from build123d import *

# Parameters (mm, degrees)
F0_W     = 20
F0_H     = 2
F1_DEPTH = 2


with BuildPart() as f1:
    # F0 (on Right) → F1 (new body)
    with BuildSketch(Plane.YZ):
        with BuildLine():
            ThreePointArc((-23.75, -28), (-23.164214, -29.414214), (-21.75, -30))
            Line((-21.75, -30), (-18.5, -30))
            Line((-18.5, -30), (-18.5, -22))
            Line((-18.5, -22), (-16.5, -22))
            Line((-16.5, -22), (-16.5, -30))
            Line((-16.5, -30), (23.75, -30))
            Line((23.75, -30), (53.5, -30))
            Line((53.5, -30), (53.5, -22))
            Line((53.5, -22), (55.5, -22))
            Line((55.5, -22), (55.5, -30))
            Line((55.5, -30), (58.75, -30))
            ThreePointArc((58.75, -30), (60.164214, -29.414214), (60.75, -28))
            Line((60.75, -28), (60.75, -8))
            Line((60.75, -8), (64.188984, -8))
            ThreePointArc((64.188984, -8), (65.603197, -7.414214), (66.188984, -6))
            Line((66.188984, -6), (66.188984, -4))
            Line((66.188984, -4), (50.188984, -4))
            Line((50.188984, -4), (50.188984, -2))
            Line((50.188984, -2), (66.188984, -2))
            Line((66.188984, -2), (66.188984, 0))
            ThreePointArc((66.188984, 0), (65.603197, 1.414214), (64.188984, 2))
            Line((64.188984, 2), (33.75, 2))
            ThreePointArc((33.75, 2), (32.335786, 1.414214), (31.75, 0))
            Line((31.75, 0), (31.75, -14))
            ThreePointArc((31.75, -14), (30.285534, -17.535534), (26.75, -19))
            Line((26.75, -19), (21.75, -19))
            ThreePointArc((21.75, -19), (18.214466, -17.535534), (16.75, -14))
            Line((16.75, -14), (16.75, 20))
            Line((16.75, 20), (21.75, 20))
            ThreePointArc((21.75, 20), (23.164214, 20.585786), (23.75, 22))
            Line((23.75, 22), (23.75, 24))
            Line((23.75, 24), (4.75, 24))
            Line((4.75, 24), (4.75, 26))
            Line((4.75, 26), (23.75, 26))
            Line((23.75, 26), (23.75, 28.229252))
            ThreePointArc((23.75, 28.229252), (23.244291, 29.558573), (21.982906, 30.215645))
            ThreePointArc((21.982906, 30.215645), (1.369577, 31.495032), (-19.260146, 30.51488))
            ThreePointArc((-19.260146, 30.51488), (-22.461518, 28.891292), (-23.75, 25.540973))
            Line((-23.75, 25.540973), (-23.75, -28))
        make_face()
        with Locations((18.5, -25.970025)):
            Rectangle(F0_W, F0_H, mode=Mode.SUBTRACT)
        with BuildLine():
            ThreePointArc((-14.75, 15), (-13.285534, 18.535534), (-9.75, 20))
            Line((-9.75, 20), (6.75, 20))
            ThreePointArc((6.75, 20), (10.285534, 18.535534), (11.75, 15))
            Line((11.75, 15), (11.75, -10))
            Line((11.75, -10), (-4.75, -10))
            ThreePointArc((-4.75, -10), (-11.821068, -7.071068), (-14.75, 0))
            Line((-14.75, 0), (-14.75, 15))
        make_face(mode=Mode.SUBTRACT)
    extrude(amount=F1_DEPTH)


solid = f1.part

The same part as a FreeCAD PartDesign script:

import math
import FreeCAD as App
import Part
import Sketcher
from FreeCAD import Vector


def add_polygon(sketch, points):
    """Adds a closed chain of lines whose ends are joined by coincident constraints."""
    first, n = sketch.GeometryCount, len(points)
    for a, b in zip(points, points[1:] + points[:1]):
        sketch.addGeometry(Part.LineSegment(App.Vector(*a, 0), App.Vector(*b, 0)), False)
    for i in range(n):
        sketch.addConstraint(Sketcher.Constraint("Coincident", first + i, 2, first + (i + 1) % n, 1))

doc = App.newDocument("Part")
params = doc.addObject("Spreadsheet::Sheet", "Params")
for row, (alias, value) in enumerate([
    ("sketch1_radius", "1.999999 mm"),
    ("sketch1_radius2", "5 mm"),
    ("sketch1_width", "2 mm"),
    ("sketch1_width2", "70 mm"),
    ("sketch1_width3", "16 mm"),
    ("pad1_length", "2 mm"),
], start=1):
    params.set(f"A{row}", alias)
    params.set(f"B{row}", "=" + value)
    params.setAlias(f"B{row}", alias)

body = doc.addObject("PartDesign::Body", "Body")

sketch1 = body.newObject("Sketcher::SketchObject", "Sketch")
sketch1.AttachmentSupport = (doc.getObject("YZ_Plane"), [""])
sketch1.MapMode = "FlatFace"
sketch1.addGeometry(Part.ArcOfCircle(Part.Circle(Vector(-21.8, -28, 0), Vector(0, 0, 1), 2), math.radians(180), math.radians(270)), False)
sketch1.addGeometry(Part.LineSegment(Vector(-21.8, -30, 0), Vector(-18.5, -30, 0)), False)
sketch1.addGeometry(Part.LineSegment(Vector(-18.5, -30, 0), Vector(-18.5, -22, 0)), False)
sketch1.addGeometry(Part.LineSegment(Vector(-18.5, -22, 0), Vector(-16.5, -22, 0)), False)
sketch1.addGeometry(Part.LineSegment(Vector(-16.5, -22, 0), Vector(-16.5, -30, 0)), False)
sketch1.addGeometry(Part.LineSegment(Vector(-16.5, -30, 0), Vector(53.5, -30, 0)), False)
sketch1.addGeometry(Part.LineSegment(Vector(53.5, -30, 0), Vector(53.5, -22, 0)), False)
sketch1.addGeometry(Part.LineSegment(Vector(53.5, -22, 0), Vector(55.5, -22, 0)), False)
sketch1.addGeometry(Part.LineSegment(Vector(55.5, -22, 0), Vector(55.5, -30, 0)), False)
sketch1.addGeometry(Part.LineSegment(Vector(55.5, -30, 0), Vector(58.8, -30, 0)), False)
sketch1.addGeometry(Part.ArcOfCircle(Part.Circle(Vector(58.8, -28, 0), Vector(0, 0, 1), 2), math.radians(-90), math.radians(0)), False)
sketch1.addGeometry(Part.LineSegment(Vector(60.8, -28, 0), Vector(60.8, -8, 0)), False)
sketch1.addGeometry(Part.LineSegment(Vector(60.8, -8, 0), Vector(64.2, -8, 0)), False)
sketch1.addGeometry(Part.ArcOfCircle(Part.Circle(Vector(64.2, -6, 0), Vector(0, 0, 1), 2), math.radians(-90), math.radians(0)), False)
sketch1.addGeometry(Part.LineSegment(Vector(66.2, -6, 0), Vector(66.2, -4, 0)), False)
sketch1.addGeometry(Part.LineSegment(Vector(66.2, -4, 0), Vector(50.2, -4, 0)), False)
sketch1.addGeometry(Part.LineSegment(Vector(50.2, -4, 0), Vector(50.2, -2, 0)), False)
sketch1.addGeometry(Part.LineSegment(Vector(50.2, -2, 0), Vector(66.2, -2, 0)), False)
sketch1.addGeometry(Part.LineSegment(Vector(66.2, -2, 0), Vector(66.2, 0, 0)), False)
sketch1.addGeometry(Part.ArcOfCircle(Part.Circle(Vector(64.2, 0, 0), Vector(0, 0, 1), 2), math.radians(0), math.radians(90)), False)
sketch1.addGeometry(Part.LineSegment(Vector(64.2, 2, 0), Vector(33.8, 2, 0)), False)
sketch1.addGeometry(Part.ArcOfCircle(Part.Circle(Vector(33.7, 0, 0), Vector(0, 0, 1), 2), math.radians(90), math.radians(180)), False)
sketch1.addGeometry(Part.LineSegment(Vector(31.8, 0, 0), Vector(31.8, -14, 0)), False)
sketch1.addGeometry(Part.ArcOfCircle(Part.Circle(Vector(26.8, -14, 0), Vector(0, 0, 1), 5), math.radians(-90), math.radians(0)), False)
sketch1.addGeometry(Part.LineSegment(Vector(26.8, -19, 0), Vector(21.8, -19, 0)), False)
sketch1.addGeometry(Part.ArcOfCircle(Part.Circle(Vector(21.7, -14, 0), Vector(0, 0, 1), 5), math.radians(180), math.radians(270)), False)
sketch1.addGeometry(Part.LineSegment(Vector(16.8, -14, 0), Vector(16.8, 20, 0)), False)
sketch1.addGeometry(Part.LineSegment(Vector(16.8, 20, 0), Vector(21.8, 20, 0)), False)
sketch1.addGeometry(Part.ArcOfCircle(Part.Circle(Vector(21.8, 22, 0), Vector(0, 0, 1), 2), math.radians(-90), math.radians(0)), False)
sketch1.addGeometry(Part.LineSegment(Vector(23.8, 22, 0), Vector(23.8, 24, 0)), False)
sketch1.addGeometry(Part.LineSegment(Vector(23.8, 24, 0), Vector(4.8, 24, 0)), False)
sketch1.addGeometry(Part.LineSegment(Vector(4.8, 24, 0), Vector(4.8, 26, 0)), False)
sketch1.addGeometry(Part.LineSegment(Vector(4.8, 26, 0), Vector(23.8, 26, 0)), False)
sketch1.addGeometry(Part.LineSegment(Vector(23.8, 26, 0), Vector(23.8, 28.2, 0)), False)
sketch1.addGeometry(Part.ArcOfCircle(Part.Circle(Vector(21.7, 28.2, 0), Vector(0, 0, 1), 2), math.radians(0), math.radians(83)), False)
sketch1.addGeometry(Part.ArcOfCircle(Part.Circle(Vector(0, -157.3, 0), Vector(0, 0, 1), 188.8), math.radians(83.31), math.radians(95.86)), False)
sketch1.addGeometry(Part.ArcOfCircle(Part.Circle(Vector(-18.8, 25.5, 0), Vector(0, 0, 1), 5), math.radians(96), math.radians(180)), False)
sketch1.addGeometry(Part.LineSegment(Vector(-23.8, 25.5, 0), Vector(-23.8, -28, 0)), False)
add_polygon(sketch1, [(28.5, -27), (8.5, -27), (8.5, -25), (28.5, -25)])
sketch1.addGeometry(Part.LineSegment(Vector(-14.8, 0, 0), Vector(-14.8, 15, 0)), False)
sketch1.addGeometry(Part.ArcOfCircle(Part.Circle(Vector(-9.8, 15, 0), Vector(0, 0, 1), 5), math.radians(90), math.radians(180)), False)
sketch1.addGeometry(Part.LineSegment(Vector(-9.8, 20, 0), Vector(6.8, 20, 0)), False)
sketch1.addGeometry(Part.ArcOfCircle(Part.Circle(Vector(6.8, 15, 0), Vector(0, 0, 1), 5), math.radians(0), math.radians(90)), False)
sketch1.addGeometry(Part.LineSegment(Vector(11.8, 15, 0), Vector(11.8, -10, 0)), False)
sketch1.addGeometry(Part.LineSegment(Vector(11.8, -10, 0), Vector(-4.8, -10, 0)), False)
sketch1.addGeometry(Part.ArcOfCircle(Part.Circle(Vector(-4.8, 0, 0), Vector(0, 0, 1), 10), math.radians(180), math.radians(270)), False)
sketch1.addConstraint([
    Sketcher.Constraint("Tangent", 0, 2, 1, 1),
    Sketcher.Constraint("Coincident", 1, 2, 2, 1),
    Sketcher.Constraint("Coincident", 2, 2, 3, 1),
    Sketcher.Constraint("Coincident", 3, 2, 4, 1),
    Sketcher.Constraint("Coincident", 4, 2, 5, 1),
    Sketcher.Constraint("Coincident", 5, 2, 6, 1),
    Sketcher.Constraint("Coincident", 6, 2, 7, 1),
    Sketcher.Constraint("Coincident", 7, 2, 8, 1),
    Sketcher.Constraint("Coincident", 8, 2, 9, 1),
    Sketcher.Constraint("Tangent", 9, 2, 10, 1),
    Sketcher.Constraint("Tangent", 10, 2, 11, 1),
    Sketcher.Constraint("Coincident", 11, 2, 12, 1),
    Sketcher.Constraint("Tangent", 12, 2, 13, 1),
    Sketcher.Constraint("Tangent", 13, 2, 14, 1),
    Sketcher.Constraint("Coincident", 14, 2, 15, 1),
    Sketcher.Constraint("Coincident", 15, 2, 16, 1),
    Sketcher.Constraint("Coincident", 16, 2, 17, 1),
    Sketcher.Constraint("Coincident", 17, 2, 18, 1),
    Sketcher.Constraint("Tangent", 18, 2, 19, 1),
    Sketcher.Constraint("Tangent", 19, 2, 20, 1),
    Sketcher.Constraint("Tangent", 20, 2, 21, 1),
    Sketcher.Constraint("Tangent", 21, 2, 22, 1),
    Sketcher.Constraint("Tangent", 22, 2, 23, 2),
    Sketcher.Constraint("Tangent", 23, 1, 24, 1),
    Sketcher.Constraint("Tangent", 24, 2, 25, 2),
    Sketcher.Constraint("Tangent", 25, 1, 26, 1),
    Sketcher.Constraint("Coincident", 26, 2, 27, 1),
    Sketcher.Constraint("Tangent", 27, 2, 28, 1),
    Sketcher.Constraint("Tangent", 28, 2, 29, 1),
    Sketcher.Constraint("Coincident", 29, 2, 30, 1),
    Sketcher.Constraint("Coincident", 30, 2, 31, 1),
    Sketcher.Constraint("Coincident", 31, 2, 32, 1),
    Sketcher.Constraint("Coincident", 32, 2, 33, 1),
    Sketcher.Constraint("Tangent", 33, 2, 34, 1),
    Sketcher.Constraint("Tangent", 34, 2, 35, 1),
    Sketcher.Constraint("Tangent", 35, 2, 36, 1),
    Sketcher.Constraint("Tangent", 36, 2, 37, 1),
    Sketcher.Constraint("Tangent", 37, 2, 0, 1),
    Sketcher.Constraint("Tangent", 42, 2, 43, 2),
    Sketcher.Constraint("Tangent", 43, 1, 44, 1),
    Sketcher.Constraint("Tangent", 44, 2, 45, 2),
    Sketcher.Constraint("Tangent", 45, 1, 46, 1),
    Sketcher.Constraint("Coincident", 46, 2, 47, 1),
    Sketcher.Constraint("Tangent", 47, 2, 48, 2),
    Sketcher.Constraint("Tangent", 48, 1, 42, 1),
    Sketcher.Constraint("Horizontal", 1),
    Sketcher.Constraint("Vertical", 2),
    Sketcher.Constraint("Horizontal", 3),
    Sketcher.Constraint("Vertical", 4),
    Sketcher.Constraint("Horizontal", 5),
    Sketcher.Constraint("Vertical", 6),
    Sketcher.Constraint("Horizontal", 7),
    Sketcher.Constraint("Vertical", 8),
    Sketcher.Constraint("Horizontal", 9),
    Sketcher.Constraint("Vertical", 11),
    Sketcher.Constraint("Horizontal", 12),
    Sketcher.Constraint("Vertical", 14),
    Sketcher.Constraint("Horizontal", 15),
    Sketcher.Constraint("Vertical", 16),
    Sketcher.Constraint("Horizontal", 17),
    Sketcher.Constraint("Vertical", 18),
    Sketcher.Constraint("Horizontal", 20),
    Sketcher.Constraint("Vertical", 22),
    Sketcher.Constraint("Horizontal", 24),
    Sketcher.Constraint("Vertical", 26),
    Sketcher.Constraint("Horizontal", 27),
    Sketcher.Constraint("Vertical", 29),
    Sketcher.Constraint("Horizontal", 30),
    Sketcher.Constraint("Vertical", 31),
    Sketcher.Constraint("Horizontal", 32),
    Sketcher.Constraint("Vertical", 33),
    Sketcher.Constraint("Vertical", 37),
    Sketcher.Constraint("Horizontal", 38),
    Sketcher.Constraint("Vertical", 39),
    Sketcher.Constraint("Horizontal", 40),
    Sketcher.Constraint("Vertical", 41),
    Sketcher.Constraint("Vertical", 42),
    Sketcher.Constraint("Horizontal", 44),
    Sketcher.Constraint("Vertical", 46),
    Sketcher.Constraint("Horizontal", 47),
    Sketcher.Constraint("Equal", 0, 10),
    Sketcher.Constraint("Equal", 10, 13),
    Sketcher.Constraint("Equal", 13, 19),
    Sketcher.Constraint("Equal", 19, 21),
    Sketcher.Constraint("Equal", 23, 25),
    Sketcher.Constraint("Equal", 21, 28),
    Sketcher.Constraint("Equal", 19, 34),
    Sketcher.Constraint("Equal", 25, 36),
    Sketcher.Constraint("Equal", 36, 43),
    Sketcher.Constraint("Equal", 43, 45),
    Sketcher.Constraint("PointOnObject", 19, 3, -1),
    Sketcher.Constraint("PointOnObject", 48, 3, -1),
    Sketcher.Constraint("Horizontal", 0, 3, 10, 3),
    Sketcher.Constraint("Horizontal", 1, 2, 4, 2),
    Sketcher.Constraint("Horizontal", 3, 2, 6, 2),
    Sketcher.Constraint("Horizontal", 27, 2, 43, 1),
    Sketcher.Constraint("Vertical", 13, 3, 19, 3),
    Sketcher.Constraint("Vertical", 25, 3, 28, 3),
    Sketcher.Constraint("Vertical", 25, 3, 34, 3),
    Sketcher.Constraint("Equal", 3, 7),
    Sketcher.Constraint("Equal", 1, 9),
    Sketcher.Constraint("Equal", 24, 27),
    Sketcher.Constraint("Equal", 44, 47),
    Sketcher.Constraint("Equal", 40, 11),
    Sketcher.Constraint("Equal", 7, 14),
    Sketcher.Constraint("Equal", 14, 16),
    Sketcher.Constraint("Equal", 16, 18),
    Sketcher.Constraint("Equal", 18, 29),
    Sketcher.Constraint("Equal", 29, 31),
    Sketcher.Constraint("Equal", 31, 39),
    Sketcher.Constraint("Radius", 0, 1.999999),
    Sketcher.Constraint("Radius", 23, 5.0),
    Sketcher.Constraint("DistanceX", 3, 1, 3, 2, 2.0),
    Sketcher.Constraint("DistanceX", 5, 1, 5, 2, 70.0),
    Sketcher.Constraint("DistanceX", 15, 2, 15, 1, 16.0),
    Sketcher.Constraint("DistanceX", 30, 2, 30, 1, 19.0),
    Sketcher.Constraint("DistanceX", 38, 2, 38, 1, 20.0),
    Sketcher.Constraint("DistanceY", 2, 1, 2, 2, 8.0),
    Sketcher.Constraint("DistanceY", 22, 2, 22, 1, 14.0),
    Sketcher.Constraint("DistanceY", 26, 1, 26, 2, 34.0),
    Sketcher.Constraint("DistanceX", 44, 1, 44, 2, 16.5),
    Sketcher.Constraint("DistanceX", 1, 1, 1, 2, 3.25),
    Sketcher.Constraint("DistanceX", 1, 2, -1, 1, 18.5),
    Sketcher.Constraint("DistanceX", -1, 1, 38, 2, 8.5),
    Sketcher.Constraint("DistanceX", -1, 1, 21, 3, 33.749999),
    Sketcher.Constraint("DistanceX", 43, 3, -1, 1, 9.75),
    Sketcher.Constraint("Radius", 35, 188.77078),
    Sketcher.Constraint("DistanceY", 33, 1, 33, 2, 2.229252),
    Sketcher.Constraint("DistanceX", 12, 1, 12, 2, 3.438984),
    Sketcher.Constraint("DistanceY", 37, 2, 37, 1, 53.540973),
    Sketcher.Constraint("DistanceY", 38, 2, -1, 1, 26.970025),
])
sketch1.setExpression("Constraints[114]", "Params.sketch1_radius")
sketch1.setExpression("Constraints[115]", "Params.sketch1_radius2")
sketch1.setExpression("Constraints[116]", "Params.sketch1_width")
sketch1.setExpression("Constraints[117]", "Params.sketch1_width2")
sketch1.setExpression("Constraints[118]", "Params.sketch1_width3")
pad1 = body.newObject("PartDesign::Pad", "Pad")
pad1.Profile = sketch1
pad1.setExpression("Length", "Params.pad1_length")

doc.recompute()
